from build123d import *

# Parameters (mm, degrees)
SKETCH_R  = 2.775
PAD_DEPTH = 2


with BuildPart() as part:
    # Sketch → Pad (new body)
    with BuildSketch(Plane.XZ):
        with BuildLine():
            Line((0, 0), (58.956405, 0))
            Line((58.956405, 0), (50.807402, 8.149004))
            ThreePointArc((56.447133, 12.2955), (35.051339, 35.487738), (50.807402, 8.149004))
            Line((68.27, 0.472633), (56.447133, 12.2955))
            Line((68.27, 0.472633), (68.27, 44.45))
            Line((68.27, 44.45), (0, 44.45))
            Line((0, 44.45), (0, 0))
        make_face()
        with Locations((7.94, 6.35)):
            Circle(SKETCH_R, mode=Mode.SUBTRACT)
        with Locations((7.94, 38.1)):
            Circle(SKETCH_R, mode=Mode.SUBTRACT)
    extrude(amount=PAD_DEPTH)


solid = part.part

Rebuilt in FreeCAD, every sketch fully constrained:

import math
import FreeCAD as App
import Part
import Sketcher
from FreeCAD import Vector
Q = App.Units.Quantity

doc = App.newDocument("Part")
body = doc.addObject("PartDesign::Body", "Body")

sketch1 = doc.addObject("Sketcher::SketchObject", "Sketch")
body.addObject(sketch1)
sketch1.AttachmentSupport = (doc.XZ_Plane, [""])
sketch1.MapMode = "FlatFace"
sketch1.addGeometry(Part.LineSegment(Vector(0, 0, 0), Vector(58.956405, 0, 0)), False)
sketch1.addGeometry(Part.LineSegment(Vector(58.956405, 0, 0), Vector(50.807402, 8.149004, 0)), False)
sketch1.addGeometry(Part.ArcOfCircle(Part.Circle(Vector(44.455, 22.697633, 0), Vector(0, 0, 1), 15.875), math.radians(-40.938799), math.radians(293.587636)), False)
sketch1.addGeometry(Part.LineSegment(Vector(56.447133, 12.2955, 0), Vector(68.27, 0.472633, 0)), False)
sketch1.addGeometry(Part.LineSegment(Vector(68.27, 0.472633, 0), Vector(68.27, 44.45, 0)), False)
sketch1.addGeometry(Part.LineSegment(Vector(68.27, 44.45, 0), Vector(0, 44.45, 0)), False)
sketch1.addGeometry(Part.LineSegment(Vector(0, 44.45, 0), Vector(0, 0, 0)), False)
sketch1.addGeometry(Part.Circle(Vector(7.94, 6.35, 0), Vector(0, 0, 1), 2.775), False)
sketch1.addGeometry(Part.Circle(Vector(7.94, 38.1, 0), Vector(0, 0, 1), 2.775), False)
sketch1.addConstraint(Sketcher.Constraint("Coincident", 0, 2, 1, 1))
sketch1.addConstraint(Sketcher.Constraint("Coincident", 1, 2, 2, 2))
sketch1.addConstraint(Sketcher.Constraint("Coincident", 2, 1, 3, 1))
sketch1.addConstraint(Sketcher.Constraint("Coincident", 3, 2, 4, 1))
sketch1.addConstraint(Sketcher.Constraint("Coincident", 4, 2, 5, 1))
sketch1.addConstraint(Sketcher.Constraint("Coincident", 5, 2, 6, 1))
sketch1.addConstraint(Sketcher.Constraint("Coincident", 6, 2, 0, 1))
sketch1.addConstraint(Sketcher.Constraint("Horizontal", 0))
sketch1.addConstraint(Sketcher.Constraint("Vertical", 4))
sketch1.addConstraint(Sketcher.Constraint("Horizontal", 5))
sketch1.addConstraint(Sketcher.Constraint("Vertical", 6))
sketch1.addConstraint(Sketcher.Constraint("Coincident", 6, 2, -1, 1))
sketch1.addConstraint(Sketcher.Constraint("Equal", 7, 8))
sketch1.addConstraint(Sketcher.Constraint("Parallel", 1, 3))
sketch1.addConstraint(Sketcher.Constraint("Vertical", 7, 3, 8, 3))
sketch1.addConstraint(Sketcher.Constraint("Angle", 1, Q("134.999996 deg")))
sketch1.addConstraint(Sketcher.Constraint("Radius", 2, Q("0.625 in")))
sketch1.addConstraint(Sketcher.Constraint("DistanceY", 6, 2, 6, 1, Q("1.75 in")))
sketch1.addConstraint(Sketcher.Constraint("DistanceY", -1, 1, 8, 3, Q("1.5 in")))
sketch1.addConstraint(Sketcher.Constraint("DistanceY", 7, 3, 5, 2, Q("1.5 in")))
sketch1.addConstraint(Sketcher.Constraint("Diameter", 7, 5.55))
sketch1.addConstraint(Sketcher.Constraint("DistanceY", 3, 2, 2, 3, Q("0.875 in")))
sketch1.addConstraint(Sketcher.Constraint("DistanceX", 5, 2, 5, 1, 68.27))
sketch1.addConstraint(Sketcher.Constraint("DistanceX", -1, 1, 2, 3, 44.455))
sketch1.addConstraint(Sketcher.Constraint("DistanceX", -1, 1, 7, 3, 7.94))
sketch1.addConstraint(Sketcher.Constraint("DistanceY", -1, 1, 2, 1, 12.2955))
sketch1.addConstraint(Sketcher.Constraint("DistanceX", 2, 3, 1, 2, 6.352402))
pad1 = doc.addObject("PartDesign::Pad", "Pad")
body.addObject(pad1)
pad1.Profile = sketch1
pad1.Length = 2

doc.recompute()
